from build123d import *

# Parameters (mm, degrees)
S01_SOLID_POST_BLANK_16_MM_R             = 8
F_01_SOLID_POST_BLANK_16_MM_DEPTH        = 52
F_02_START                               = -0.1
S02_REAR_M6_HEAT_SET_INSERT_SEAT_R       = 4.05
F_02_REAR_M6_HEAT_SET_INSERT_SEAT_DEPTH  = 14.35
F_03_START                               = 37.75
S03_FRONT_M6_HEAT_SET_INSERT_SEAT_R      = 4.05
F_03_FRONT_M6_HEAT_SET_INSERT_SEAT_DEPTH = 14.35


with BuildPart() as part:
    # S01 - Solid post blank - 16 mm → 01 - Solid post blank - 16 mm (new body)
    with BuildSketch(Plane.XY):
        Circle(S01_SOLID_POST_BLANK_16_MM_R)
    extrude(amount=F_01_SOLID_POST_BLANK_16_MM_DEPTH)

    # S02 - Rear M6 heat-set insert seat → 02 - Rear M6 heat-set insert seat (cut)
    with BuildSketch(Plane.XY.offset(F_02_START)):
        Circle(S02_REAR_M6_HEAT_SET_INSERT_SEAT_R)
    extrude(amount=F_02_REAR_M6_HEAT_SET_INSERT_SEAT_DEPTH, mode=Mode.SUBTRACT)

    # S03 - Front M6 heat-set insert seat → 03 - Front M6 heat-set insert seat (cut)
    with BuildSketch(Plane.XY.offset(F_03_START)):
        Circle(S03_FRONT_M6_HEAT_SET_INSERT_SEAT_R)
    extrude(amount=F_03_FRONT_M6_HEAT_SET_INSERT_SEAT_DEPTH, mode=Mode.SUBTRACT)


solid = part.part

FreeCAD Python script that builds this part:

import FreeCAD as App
import Part
import Sketcher

doc = App.newDocument("Part")
body = doc.addObject("PartDesign::Body", "Body")

sketch1 = doc.addObject("Sketcher::SketchObject", "Sketch")
body.addObject(sketch1)
sketch1.AttachmentSupport = (doc.XY_Plane, [""])
sketch1.MapMode = "FlatFace"
sketch1.addGeometry(Part.Circle(App.Vector(0, 0, 0), App.Vector(0, 0, 1), 8), False)
sketch1.addConstraint(Sketcher.Constraint("Coincident", 0, 3, -1, 1))
sketch1.addConstraint(Sketcher.Constraint("Diameter", 0, 16.0))
pad1 = doc.addObject("PartDesign::Pad", "Pad")
body.addObject(pad1)
pad1.Profile = sketch1
pad1.Length = 52

sketch2 = doc.addObject("Sketcher::SketchObject", "Sketch001")
body.addObject(sketch2)
sketch2.AttachmentSupport = (doc.XY_Plane, [""])
sketch2.MapMode = "FlatFace"
sketch2.AttachmentOffset = App.Placement(App.Vector(0, 0, -0.1), App.Rotation())
sketch2.addGeometry(Part.Circle(App.Vector(0, 0, 0), App.Vector(0, 0, 1), 4), False)
sketch2.addConstraint(Sketcher.Constraint("Coincident", 0, 3, -1, 1))
sketch2.addConstraint(Sketcher.Constraint("Diameter", 0, 8.1))
pocket1 = doc.addObject("PartDesign::Pocket", "Pocket")
body.addObject(pocket1)
pocket1.Profile = sketch2
pocket1.Length = 14.35
pocket1.Reversed = True

sketch3 = doc.addObject("Sketcher::SketchObject", "Sketch002")
body.addObject(sketch3)
sketch3.AttachmentSupport = (doc.XY_Plane, [""])
sketch3.MapMode = "FlatFace"
sketch3.AttachmentOffset = App.Placement(App.Vector(0, 0, 37.75), App.Rotation())
sketch3.addGeometry(Part.Circle(App.Vector(0, 0, 0), App.Vector(0, 0, 1), 4), False)
sketch3.addConstraint(Sketcher.Constraint("Coincident", 0, 3, -1, 1))
sketch3.addConstraint(Sketcher.Constraint("Diameter", 0, 8.1))
pocket2 = doc.addObject("PartDesign::Pocket", "Pocket001")
body.addObject(pocket2)
pocket2.Profile = sketch3
pocket2.Length = 14.35
pocket2.Reversed = True

doc.recompute()
